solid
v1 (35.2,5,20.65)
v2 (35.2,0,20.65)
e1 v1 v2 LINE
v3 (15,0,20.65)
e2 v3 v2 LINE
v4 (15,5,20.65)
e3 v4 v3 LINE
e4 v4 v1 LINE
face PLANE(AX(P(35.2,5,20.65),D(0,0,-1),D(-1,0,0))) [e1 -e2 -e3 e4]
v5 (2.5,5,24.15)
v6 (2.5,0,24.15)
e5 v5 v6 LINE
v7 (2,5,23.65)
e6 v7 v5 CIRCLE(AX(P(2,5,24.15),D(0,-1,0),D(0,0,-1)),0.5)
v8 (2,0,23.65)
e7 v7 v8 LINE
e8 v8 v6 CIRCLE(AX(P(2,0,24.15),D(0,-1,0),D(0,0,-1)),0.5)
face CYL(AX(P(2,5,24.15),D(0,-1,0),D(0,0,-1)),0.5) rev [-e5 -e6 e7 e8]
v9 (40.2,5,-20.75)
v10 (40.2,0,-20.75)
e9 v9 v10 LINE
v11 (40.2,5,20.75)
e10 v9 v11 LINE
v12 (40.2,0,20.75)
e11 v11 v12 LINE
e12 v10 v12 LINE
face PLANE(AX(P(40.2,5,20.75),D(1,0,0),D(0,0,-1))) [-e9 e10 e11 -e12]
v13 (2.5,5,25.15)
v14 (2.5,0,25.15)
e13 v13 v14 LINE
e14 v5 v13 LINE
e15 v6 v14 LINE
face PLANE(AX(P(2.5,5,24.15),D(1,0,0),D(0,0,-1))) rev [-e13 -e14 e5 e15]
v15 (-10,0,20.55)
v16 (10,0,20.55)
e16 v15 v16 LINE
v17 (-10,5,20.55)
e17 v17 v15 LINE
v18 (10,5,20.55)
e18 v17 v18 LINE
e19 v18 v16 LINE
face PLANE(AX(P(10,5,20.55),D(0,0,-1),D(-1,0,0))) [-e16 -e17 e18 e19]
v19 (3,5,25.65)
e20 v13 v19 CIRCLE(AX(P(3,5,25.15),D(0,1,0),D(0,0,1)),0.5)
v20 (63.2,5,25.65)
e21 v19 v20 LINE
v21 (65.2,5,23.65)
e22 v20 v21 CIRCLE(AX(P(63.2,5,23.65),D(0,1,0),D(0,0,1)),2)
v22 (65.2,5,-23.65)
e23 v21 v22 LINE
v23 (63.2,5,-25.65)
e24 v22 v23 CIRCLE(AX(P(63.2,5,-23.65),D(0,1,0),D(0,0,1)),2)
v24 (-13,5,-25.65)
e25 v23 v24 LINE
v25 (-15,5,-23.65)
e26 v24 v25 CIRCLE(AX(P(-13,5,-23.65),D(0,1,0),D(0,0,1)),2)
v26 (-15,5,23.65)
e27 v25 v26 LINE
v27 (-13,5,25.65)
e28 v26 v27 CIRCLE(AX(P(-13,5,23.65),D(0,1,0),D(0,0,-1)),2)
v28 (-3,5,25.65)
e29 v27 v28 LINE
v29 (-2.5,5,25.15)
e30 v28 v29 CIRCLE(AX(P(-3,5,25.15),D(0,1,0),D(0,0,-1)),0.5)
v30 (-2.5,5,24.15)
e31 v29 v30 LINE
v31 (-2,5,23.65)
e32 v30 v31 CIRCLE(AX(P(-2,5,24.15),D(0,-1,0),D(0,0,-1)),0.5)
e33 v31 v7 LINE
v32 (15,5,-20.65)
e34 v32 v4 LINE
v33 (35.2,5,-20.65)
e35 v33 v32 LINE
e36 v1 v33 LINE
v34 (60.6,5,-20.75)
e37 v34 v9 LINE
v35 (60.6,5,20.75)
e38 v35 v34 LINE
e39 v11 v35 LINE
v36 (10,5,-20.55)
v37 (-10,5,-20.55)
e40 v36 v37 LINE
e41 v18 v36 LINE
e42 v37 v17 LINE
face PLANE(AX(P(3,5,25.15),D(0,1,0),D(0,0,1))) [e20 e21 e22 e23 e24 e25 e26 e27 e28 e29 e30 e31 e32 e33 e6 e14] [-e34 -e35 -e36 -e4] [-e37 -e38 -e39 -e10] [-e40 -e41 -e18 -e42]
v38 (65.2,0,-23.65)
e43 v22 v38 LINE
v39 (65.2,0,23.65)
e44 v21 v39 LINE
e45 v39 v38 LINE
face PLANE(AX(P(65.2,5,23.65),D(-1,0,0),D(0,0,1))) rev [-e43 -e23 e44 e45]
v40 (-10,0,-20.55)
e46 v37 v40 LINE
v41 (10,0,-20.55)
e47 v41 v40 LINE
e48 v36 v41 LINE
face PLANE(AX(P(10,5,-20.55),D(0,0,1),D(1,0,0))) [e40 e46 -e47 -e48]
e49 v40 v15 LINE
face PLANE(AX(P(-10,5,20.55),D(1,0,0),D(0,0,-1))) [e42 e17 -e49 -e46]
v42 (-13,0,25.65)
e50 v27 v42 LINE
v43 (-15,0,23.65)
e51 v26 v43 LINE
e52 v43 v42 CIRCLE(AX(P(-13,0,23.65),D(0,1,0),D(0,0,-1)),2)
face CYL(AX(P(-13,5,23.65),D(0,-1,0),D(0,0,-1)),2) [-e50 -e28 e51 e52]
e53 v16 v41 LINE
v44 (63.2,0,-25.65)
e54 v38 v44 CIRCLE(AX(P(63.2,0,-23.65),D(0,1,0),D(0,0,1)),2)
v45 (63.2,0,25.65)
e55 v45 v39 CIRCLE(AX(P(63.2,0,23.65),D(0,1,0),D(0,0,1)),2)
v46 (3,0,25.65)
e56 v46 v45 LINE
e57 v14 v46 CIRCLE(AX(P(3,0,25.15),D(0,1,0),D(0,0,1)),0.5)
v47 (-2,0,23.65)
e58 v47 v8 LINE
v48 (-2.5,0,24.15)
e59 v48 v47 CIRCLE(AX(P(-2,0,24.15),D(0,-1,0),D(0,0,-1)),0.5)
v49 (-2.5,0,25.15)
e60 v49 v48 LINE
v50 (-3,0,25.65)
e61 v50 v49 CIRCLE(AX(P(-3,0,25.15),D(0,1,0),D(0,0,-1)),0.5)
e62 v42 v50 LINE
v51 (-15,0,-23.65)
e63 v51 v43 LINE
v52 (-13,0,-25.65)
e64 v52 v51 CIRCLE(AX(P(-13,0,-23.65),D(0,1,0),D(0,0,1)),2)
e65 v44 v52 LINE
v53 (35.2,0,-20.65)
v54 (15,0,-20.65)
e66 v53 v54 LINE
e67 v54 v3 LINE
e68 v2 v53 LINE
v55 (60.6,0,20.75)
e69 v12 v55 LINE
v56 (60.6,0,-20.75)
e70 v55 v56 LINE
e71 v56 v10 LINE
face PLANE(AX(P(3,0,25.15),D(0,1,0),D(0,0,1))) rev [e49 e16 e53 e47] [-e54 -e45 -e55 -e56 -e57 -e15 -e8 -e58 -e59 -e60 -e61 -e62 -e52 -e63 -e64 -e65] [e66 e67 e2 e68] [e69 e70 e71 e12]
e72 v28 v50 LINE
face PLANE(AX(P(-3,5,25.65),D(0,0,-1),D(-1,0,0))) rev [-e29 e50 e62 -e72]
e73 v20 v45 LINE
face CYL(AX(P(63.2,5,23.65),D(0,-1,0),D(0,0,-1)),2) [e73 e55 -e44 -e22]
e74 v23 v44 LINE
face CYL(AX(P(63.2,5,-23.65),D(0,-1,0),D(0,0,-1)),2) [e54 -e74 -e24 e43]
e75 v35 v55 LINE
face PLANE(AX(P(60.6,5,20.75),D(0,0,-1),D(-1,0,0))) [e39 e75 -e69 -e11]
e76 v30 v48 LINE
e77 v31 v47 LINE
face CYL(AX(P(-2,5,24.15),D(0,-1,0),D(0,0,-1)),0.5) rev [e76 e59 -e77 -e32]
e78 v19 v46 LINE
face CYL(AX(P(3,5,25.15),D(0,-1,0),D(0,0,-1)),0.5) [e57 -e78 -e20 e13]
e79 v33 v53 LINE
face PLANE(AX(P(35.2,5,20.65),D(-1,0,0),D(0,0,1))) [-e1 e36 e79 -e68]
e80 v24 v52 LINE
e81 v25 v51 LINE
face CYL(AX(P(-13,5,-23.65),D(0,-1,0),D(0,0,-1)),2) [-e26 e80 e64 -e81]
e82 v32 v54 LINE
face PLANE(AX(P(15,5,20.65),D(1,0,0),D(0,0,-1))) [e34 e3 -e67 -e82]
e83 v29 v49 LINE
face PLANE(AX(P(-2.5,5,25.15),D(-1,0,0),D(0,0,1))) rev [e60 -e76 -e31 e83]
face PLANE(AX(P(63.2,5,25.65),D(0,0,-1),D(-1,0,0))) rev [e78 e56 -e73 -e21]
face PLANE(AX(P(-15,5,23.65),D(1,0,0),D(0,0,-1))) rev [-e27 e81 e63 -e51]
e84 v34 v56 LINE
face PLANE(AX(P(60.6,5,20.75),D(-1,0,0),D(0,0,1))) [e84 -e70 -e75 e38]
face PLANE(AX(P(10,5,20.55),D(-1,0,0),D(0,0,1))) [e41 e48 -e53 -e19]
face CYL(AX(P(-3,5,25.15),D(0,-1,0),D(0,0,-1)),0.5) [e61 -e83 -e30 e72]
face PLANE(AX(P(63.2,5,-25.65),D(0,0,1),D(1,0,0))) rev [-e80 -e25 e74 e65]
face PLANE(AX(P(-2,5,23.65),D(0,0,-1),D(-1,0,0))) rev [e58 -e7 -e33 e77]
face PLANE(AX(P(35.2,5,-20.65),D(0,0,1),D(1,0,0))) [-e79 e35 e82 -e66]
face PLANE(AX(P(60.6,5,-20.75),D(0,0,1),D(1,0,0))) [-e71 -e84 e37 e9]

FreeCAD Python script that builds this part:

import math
import FreeCAD as App
import Part
import Sketcher
from FreeCAD import Vector
Q = App.Units.Quantity

doc = App.newDocument("Part")
body = doc.addObject("PartDesign::Body", "Body")

sketch1 = body.newObject("Sketcher::SketchObject", "Sketch")
sketch1.AttachmentSupport = (doc.getObject("XZ_Plane"), [""])
sketch1.MapMode = "FlatFace"
sketch1.addGeometry(Part.LineSegment(Vector(-2.5, 25.15, 0), Vector(-2.5, 24.15, 0)), False)
sketch1.addGeometry(Part.ArcOfCircle(Part.Circle(Vector(-2, 24.15, 0), Vector(0, 0, 1), 0.5), math.radians(180), math.radians(270)), False)
sketch1.addGeometry(Part.LineSegment(Vector(-2, 23.65, 0), Vector(2, 23.65, 0)), False)
sketch1.addGeometry(Part.ArcOfCircle(Part.Circle(Vector(2, 24.15, 0), Vector(0, 0, 1), 0.5), math.radians(-90), math.radians(0)), False)
sketch1.addGeometry(Part.LineSegment(Vector(2.5, 24.15, 0), Vector(2.5, 25.15, 0)), False)
sketch1.addGeometry(Part.ArcOfCircle(Part.Circle(Vector(3, 25.15, 0), Vector(0, 0, 1), 0.5), math.radians(90), math.radians(180)), False)
sketch1.addGeometry(Part.LineSegment(Vector(3, 25.65, 0), Vector(63.2, 25.65, 0)), False)
sketch1.addGeometry(Part.ArcOfCircle(Part.Circle(Vector(63.2, 23.65, 0), Vector(0, 0, 1), 2), math.radians(0), math.radians(90)), False)
sketch1.addGeometry(Part.LineSegment(Vector(65.2, 23.65, 0), Vector(65.2, -23.65, 0)), False)
sketch1.addGeometry(Part.ArcOfCircle(Part.Circle(Vector(63.2, -23.65, 0), Vector(0, 0, 1), 2), math.radians(-90), math.radians(0)), False)
sketch1.addGeometry(Part.LineSegment(Vector(63.2, -25.65, 0), Vector(-13, -25.65, 0)), False)
sketch1.addGeometry(Part.ArcOfCircle(Part.Circle(Vector(-13, -23.65, 0), Vector(0, 0, 1), 2), math.radians(-180), math.radians(-90)), False)
sketch1.addGeometry(Part.LineSegment(Vector(-15, -23.65, 0), Vector(-15, 23.65, 0)), False)
sketch1.addGeometry(Part.ArcOfCircle(Part.Circle(Vector(-13, 23.65, 0), Vector(0, 0, 1), 2), math.radians(90), math.radians(180)), False)
sketch1.addGeometry(Part.LineSegment(Vector(-13, 25.65, 0), Vector(-3, 25.65, 0)), False)
sketch1.addGeometry(Part.ArcOfCircle(Part.Circle(Vector(-3, 25.15, 0), Vector(0, 0, 1), 0.5), math.radians(0), math.radians(90)), False)
sketch1.addGeometry(Part.LineSegment(Vector(10, 20.55, 0), Vector(-10, 20.55, 0)), False)
sketch1.addGeometry(Part.LineSegment(Vector(-10, 20.55, 0), Vector(-10, -20.55, 0)), False)
sketch1.addGeometry(Part.LineSegment(Vector(-10, -20.55, 0), Vector(10, -20.55, 0)), False)
sketch1.addGeometry(Part.LineSegment(Vector(10, -20.55, 0), Vector(10, 20.55, 0)), False)
sketch1.addGeometry(Part.LineSegment(Vector(35.2, 20.65, 0), Vector(15, 20.65, 0)), False)
sketch1.addGeometry(Part.LineSegment(Vector(15, 20.65, 0), Vector(15, -20.65, 0)), False)
sketch1.addGeometry(Part.LineSegment(Vector(15, -20.65, 0), Vector(35.2, -20.65, 0)), False)
sketch1.addGeometry(Part.LineSegment(Vector(35.2, -20.65, 0), Vector(35.2, 20.65, 0)), False)
sketch1.addGeometry(Part.LineSegment(Vector(60.6, 20.75, 0), Vector(40.2, 20.75, 0)), False)
sketch1.addGeometry(Part.LineSegment(Vector(40.2, 20.75, 0), Vector(40.2, -20.75, 0)), False)
sketch1.addGeometry(Part.LineSegment(Vector(40.2, -20.75, 0), Vector(60.6, -20.75, 0)), False)
sketch1.addGeometry(Part.LineSegment(Vector(60.6, -20.75, 0), Vector(60.6, 20.75, 0)), False)
sketch1.addConstraint(Sketcher.Constraint("Tangent", 0, 2, 1, 1))
sketch1.addConstraint(Sketcher.Constraint("Tangent", 1, 2, 2, 1))
sketch1.addConstraint(Sketcher.Constraint("Tangent", 2, 2, 3, 1))
sketch1.addConstraint(Sketcher.Constraint("Tangent", 3, 2, 4, 1))
sketch1.addConstraint(Sketcher.Constraint("Tangent", 4, 2, 5, 2))
sketch1.addConstraint(Sketcher.Constraint("Tangent", 5, 1, 6, 1))
sketch1.addConstraint(Sketcher.Constraint("Tangent", 6, 2, 7, 2))
sketch1.addConstraint(Sketcher.Constraint("Tangent", 7, 1, 8, 1))
sketch1.addConstraint(Sketcher.Constraint("Tangent", 8, 2, 9, 2))
sketch1.addConstraint(Sketcher.Constraint("Tangent", 9, 1, 10, 1))
sketch1.addConstraint(Sketcher.Constraint("Tangent", 10, 2, 11, 2))
sketch1.addConstraint(Sketcher.Constraint("Tangent", 11, 1, 12, 1))
sketch1.addConstraint(Sketcher.Constraint("Tangent", 12, 2, 13, 2))
sketch1.addConstraint(Sketcher.Constraint("Tangent", 13, 1, 14, 1))
sketch1.addConstraint(Sketcher.Constraint("Tangent", 14, 2, 15, 2))
sketch1.addConstraint(Sketcher.Constraint("Tangent", 15, 1, 0, 1))
sketch1.addConstraint(Sketcher.Constraint("Coincident", 16, 2, 17, 1))
sketch1.addConstraint(Sketcher.Constraint("Coincident", 17, 2, 18, 1))
sketch1.addConstraint(Sketcher.Constraint("Coincident", 18, 2, 19, 1))
sketch1.addConstraint(Sketcher.Constraint("Coincident", 19, 2, 16, 1))
sketch1.addConstraint(Sketcher.Constraint("Coincident", 20, 2, 21, 1))
sketch1.addConstraint(Sketcher.Constraint("Coincident", 21, 2, 22, 1))
sketch1.addConstraint(Sketcher.Constraint("Coincident", 22, 2, 23, 1))
sketch1.addConstraint(Sketcher.Constraint("Coincident", 23, 2, 20, 1))
sketch1.addConstraint(Sketcher.Constraint("Coincident", 24, 2, 25, 1))
sketch1.addConstraint(Sketcher.Constraint("Coincident", 25, 2, 26, 1))
sketch1.addConstraint(Sketcher.Constraint("Coincident", 26, 2, 27, 1))
sketch1.addConstraint(Sketcher.Constraint("Coincident", 27, 2, 24, 1))
sketch1.addConstraint(Sketcher.Constraint("Vertical", 0))
sketch1.addConstraint(Sketcher.Constraint("Horizontal", 2))
sketch1.addConstraint(Sketcher.Constraint("Vertical", 4))
sketch1.addConstraint(Sketcher.Constraint("Horizontal", 6))
sketch1.addConstraint(Sketcher.Constraint("Vertical", 8))
sketch1.addConstraint(Sketcher.Constraint("Horizontal", 10))
sketch1.addConstraint(Sketcher.Constraint("Vertical", 12))
sketch1.addConstraint(Sketcher.Constraint("Horizontal", 14))
sketch1.addConstraint(Sketcher.Constraint("Horizontal", 16))
sketch1.addConstraint(Sketcher.Constraint("Vertical", 17))
sketch1.addConstraint(Sketcher.Constraint("Horizontal", 18))
sketch1.addConstraint(Sketcher.Constraint("Vertical", 19))
sketch1.addConstraint(Sketcher.Constraint("Horizontal", 20))
sketch1.addConstraint(Sketcher.Constraint("Vertical", 21))
sketch1.addConstraint(Sketcher.Constraint("Horizontal", 22))
sketch1.addConstraint(Sketcher.Constraint("Vertical", 23))
sketch1.addConstraint(Sketcher.Constraint("Horizontal", 24))
sketch1.addConstraint(Sketcher.Constraint("Vertical", 25))
sketch1.addConstraint(Sketcher.Constraint("Horizontal", 26))
sketch1.addConstraint(Sketcher.Constraint("Vertical", 27))
sketch1.addConstraint(Sketcher.Constraint("Equal", 1, 3))
sketch1.addConstraint(Sketcher.Constraint("Equal", 3, 5))
sketch1.addConstraint(Sketcher.Constraint("Equal", 7, 9))
sketch1.addConstraint(Sketcher.Constraint("Equal", 9, 11))
sketch1.addConstraint(Sketcher.Constraint("Equal", 11, 13))
sketch1.addConstraint(Sketcher.Constraint("Equal", 5, 15))
sketch1.addConstraint(Sketcher.Constraint("Symmetric", 16, 2, 18, 2, -1, 1))
sketch1.addConstraint(Sketcher.Constraint("Symmetric", 5, 3, 15, 3, -2))
sketch1.addConstraint(Sketcher.Constraint("Horizontal", 13, 3, 1, 2))
sketch1.addConstraint(Sketcher.Constraint("Radius", 7, Q("2 mm")))
sketch1.addConstraint(Sketcher.Constraint("Radius", 1, Q("0.5 mm")))
sketch1.addConstraint(Sketcher.Constraint("DistanceX", 2, 1, 2, 2, Q("4 mm")))
sketch1.addConstraint(Sketcher.Constraint("DistanceX", 14, 1, 14, 2, Q("10 mm")))
sketch1.addConstraint(Sketcher.Constraint("DistanceX", 16, 2, 16, 1, Q("20 mm")))
sketch1.addConstraint(Sketcher.Constraint("DistanceX", 6, 1, 6, 2, Q("60.2 mm")))
sketch1.addConstraint(Sketcher.Constraint("DistanceX", 20, 2, 20, 1, Q("20.2 mm")))
sketch1.addConstraint(Sketcher.Constraint("DistanceX", 24, 2, 24, 1, Q("20.4 mm")))
sketch1.addConstraint(Sketcher.Constraint("DistanceY", 8, 2, 8, 1, Q("47.3 mm")))
sketch1.addConstraint(Sketcher.Constraint("DistanceY", 17, 2, 17, 1, Q("41.1 mm")))
sketch1.addConstraint(Sketcher.Constraint("DistanceY", 21, 2, 21, 1, Q("41.3 mm")))
sketch1.addConstraint(Sketcher.Constraint("DistanceY", 25, 2, 25, 1, Q("41.5 mm")))
sketch1.addConstraint(Sketcher.Constraint("DistanceX", -1, 1, 20, 2, Q("15 mm")))
sketch1.addConstraint(Sketcher.Constraint("DistanceY", 20, 2, 5, 1, Q("5 mm")))
sketch1.addConstraint(Sketcher.Constraint("DistanceX", 23, 2, 24, 2, Q("5 mm")))
sketch1.addConstraint(Sketcher.Constraint("DistanceY", 16, 2, 13, 3, Q("3.1 mm")))
sketch1.addConstraint(Sketcher.Constraint("DistanceY", 23, 2, 24, 2, Q("0.1 mm")))
pad1 = body.newObject("PartDesign::Pad", "Pad")
pad1.Profile = sketch1
pad1.Length = 5
pad1.Reversed = True

doc.recompute()
